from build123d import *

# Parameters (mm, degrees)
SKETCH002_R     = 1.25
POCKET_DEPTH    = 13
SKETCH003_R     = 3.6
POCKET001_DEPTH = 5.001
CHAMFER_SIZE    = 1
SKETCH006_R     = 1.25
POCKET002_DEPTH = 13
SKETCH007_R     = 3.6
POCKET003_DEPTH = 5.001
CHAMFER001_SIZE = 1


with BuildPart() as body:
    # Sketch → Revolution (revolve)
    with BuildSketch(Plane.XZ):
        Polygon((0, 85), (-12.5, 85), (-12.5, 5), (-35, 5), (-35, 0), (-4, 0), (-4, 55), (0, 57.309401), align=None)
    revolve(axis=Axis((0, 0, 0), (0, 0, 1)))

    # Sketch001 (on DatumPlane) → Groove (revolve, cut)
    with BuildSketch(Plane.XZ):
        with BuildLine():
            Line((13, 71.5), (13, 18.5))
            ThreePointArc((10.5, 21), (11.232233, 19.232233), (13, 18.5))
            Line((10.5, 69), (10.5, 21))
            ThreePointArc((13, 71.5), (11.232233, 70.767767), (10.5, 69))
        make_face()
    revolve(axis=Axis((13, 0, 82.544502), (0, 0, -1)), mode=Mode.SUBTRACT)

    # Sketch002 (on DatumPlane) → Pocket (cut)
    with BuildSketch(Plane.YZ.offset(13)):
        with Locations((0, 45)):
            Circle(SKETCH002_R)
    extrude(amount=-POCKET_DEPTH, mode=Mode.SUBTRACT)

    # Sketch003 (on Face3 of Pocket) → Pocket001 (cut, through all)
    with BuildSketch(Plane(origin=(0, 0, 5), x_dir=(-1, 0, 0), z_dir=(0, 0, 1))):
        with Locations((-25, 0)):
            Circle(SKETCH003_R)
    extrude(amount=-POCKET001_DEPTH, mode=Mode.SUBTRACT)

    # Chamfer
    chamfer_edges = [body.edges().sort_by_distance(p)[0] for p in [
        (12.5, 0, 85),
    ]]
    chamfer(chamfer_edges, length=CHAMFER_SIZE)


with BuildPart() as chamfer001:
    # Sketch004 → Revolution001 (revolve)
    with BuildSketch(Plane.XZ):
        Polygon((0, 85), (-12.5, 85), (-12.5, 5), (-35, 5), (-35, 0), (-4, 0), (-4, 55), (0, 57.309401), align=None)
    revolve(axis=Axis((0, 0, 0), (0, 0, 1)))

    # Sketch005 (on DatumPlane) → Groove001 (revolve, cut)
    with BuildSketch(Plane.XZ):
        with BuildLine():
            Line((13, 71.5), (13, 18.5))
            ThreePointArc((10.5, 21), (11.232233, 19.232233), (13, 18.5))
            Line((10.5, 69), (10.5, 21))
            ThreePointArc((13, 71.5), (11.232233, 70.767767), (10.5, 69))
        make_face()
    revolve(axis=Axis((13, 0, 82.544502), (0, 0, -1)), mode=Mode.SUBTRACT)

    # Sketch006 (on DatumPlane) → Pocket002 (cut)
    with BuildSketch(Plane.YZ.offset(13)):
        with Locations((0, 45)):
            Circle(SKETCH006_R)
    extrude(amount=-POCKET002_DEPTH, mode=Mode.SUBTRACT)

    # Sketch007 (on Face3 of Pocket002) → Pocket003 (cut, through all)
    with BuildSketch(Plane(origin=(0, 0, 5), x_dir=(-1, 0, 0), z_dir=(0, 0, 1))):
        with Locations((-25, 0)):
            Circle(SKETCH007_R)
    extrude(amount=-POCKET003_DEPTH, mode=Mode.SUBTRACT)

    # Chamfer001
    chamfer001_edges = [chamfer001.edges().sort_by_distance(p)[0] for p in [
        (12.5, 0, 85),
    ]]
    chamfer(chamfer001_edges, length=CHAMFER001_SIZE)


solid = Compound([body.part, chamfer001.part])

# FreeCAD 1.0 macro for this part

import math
import FreeCAD as App
import Part
import Sketcher
from FreeCAD import Vector
Q = App.Units.Quantity


def edges_at(feature, points):
    """Names of the edges that pass closest to the given points."""
    edges = feature.Shape.Edges
    near = lambda p: min(range(len(edges)), key=lambda i: edges[i].distToShape(Part.Vertex(*p))[0])
    return sorted({f"Edge{near(p) + 1}" for p in points})


def add_polygon(sketch, points):
    """Adds a closed chain of lines whose ends are joined by coincident constraints."""
    first, n = sketch.GeometryCount, len(points)
    for a, b in zip(points, points[1:] + points[:1]):
        sketch.addGeometry(Part.LineSegment(App.Vector(*a, 0), App.Vector(*b, 0)), False)
    for i in range(n):
        sketch.addConstraint(Sketcher.Constraint("Coincident", first + i, 2, first + (i + 1) % n, 1))

doc = App.newDocument("Part")
body = doc.addObject("PartDesign::Body", "Body")

sketch1 = body.newObject("Sketcher::SketchObject", "Sketch")
sketch1.AttachmentSupport = (doc.getObject("XZ_Plane"), [""])
sketch1.MapMode = "FlatFace"
add_polygon(sketch1, [(0, 85), (-12.5, 85), (-12.5, 5), (-35, 5), (-35, 0), (-4, 0), (-4, 55), (0, 57.3)])
sketch1.addConstraint([
    Sketcher.Constraint("Horizontal", 0),
    Sketcher.Constraint("Vertical", 1),
    Sketcher.Constraint("Horizontal", 2),
    Sketcher.Constraint("Vertical", 3),
    Sketcher.Constraint("Horizontal", 4),
    Sketcher.Constraint("Vertical", 5),
    Sketcher.Constraint("Vertical", 7),
    Sketcher.Constraint("PointOnObject", 3, 2, -1),
    Sketcher.Constraint("PointOnObject", 6, 2, -2),
    Sketcher.Constraint("DistanceX", 4, 1, 4, 2, 31.0),
    Sketcher.Constraint("DistanceY", 1, 2, 1, 1, 80.0),
    Sketcher.Constraint("DistanceY", 3, 2, 3, 1, 5.0),
    Sketcher.Constraint("DistanceY", 5, 1, 5, 2, 55.0),
    Sketcher.Constraint("Angle", 6, Q("29.999999 deg")),
    Sketcher.Constraint("DistanceX", 0, 2, 0, 1, 12.5),
    Sketcher.Constraint("DistanceX", 2, 2, 2, 1, 22.5),
])
revolution = body.newObject("PartDesign::Revolution", "Revolution")
revolution.Profile = sketch1
revolution.ReferenceAxis = (sketch1, ["V_Axis"])
revolution.Angle = 360

sketch2 = body.newObject("Sketcher::SketchObject", "Sketch001")
sketch2.AttachmentSupport = (doc.getObject("XZ_Plane"), [""])
sketch2.MapMode = "FlatFace"
sketch2.addGeometry([
    Part.LineSegment(Vector(13, 18.5, 0), Vector(13, 71.5, 0)),
    Part.ArcOfCircle(Part.Circle(Vector(13, 69, 0), Vector(0, 0, 1), 2.5), math.radians(90), math.radians(180)),
    Part.LineSegment(Vector(10.5, 69, 0), Vector(10.5, 21, 0)),
    Part.ArcOfCircle(Part.Circle(Vector(13, 21, 0), Vector(0, 0, 1), 2.5), math.radians(180), math.radians(270)),
], False)
sketch2.addGeometry(Part.LineSegment(Vector(13, 71.5, 0), Vector(13, 18.5, 0)), True)
sketch2.addConstraint([
    Sketcher.Constraint("Coincident", 0, 2, 1, 1),
    Sketcher.Constraint("Tangent", 1, 2, 2, 1),
    Sketcher.Constraint("Tangent", 2, 2, 3, 1),
    Sketcher.Constraint("Coincident", 3, 2, 0, 1),
    Sketcher.Constraint("Vertical", 0),
    Sketcher.Constraint("Vertical", 2),
    Sketcher.Constraint("Vertical", 4),
    Sketcher.Constraint("Coincident", 4, 1, 0, 2),
    Sketcher.Constraint("Equal", 1, 3),
    Sketcher.Constraint("Vertical", 3, 3, 0, 2),
    Sketcher.Constraint("Equal", 0, 4),
    Sketcher.Constraint("Radius", 1, 2.5),
    Sketcher.Constraint("DistanceY", 0, 1, 0, 2, 53.0),
    Sketcher.Constraint("DistanceX", -1, 1, 1, 3, 13.0),
    Sketcher.Constraint("DistanceY", -1, 1, 1, 3, 69.0),
])
groove = body.newObject("PartDesign::Groove", "Groove")
groove.Profile = sketch2
groove.ReferenceAxis = (sketch2, ["Axis0"])
groove.Angle = 360

sketch3 = body.newObject("Sketcher::SketchObject", "Sketch002")
sketch3.AttachmentSupport = (doc.getObject("YZ_Plane"), [""])
sketch3.MapMode = "FlatFace"
sketch3.AttachmentOffset = App.Placement(Vector(0, 0, 13), App.Rotation())
sketch3.addGeometry(Part.Circle(Vector(0, 45, 0), Vector(0, 0, 1), 1.2), False)
sketch3.addConstraint([
    Sketcher.Constraint("PointOnObject", 0, 3, -2),
    Sketcher.Constraint("Diameter", 0, 2.5),
    Sketcher.Constraint("DistanceY", -1, 1, 0, 3, 45.0),
])
pocket1 = body.newObject("PartDesign::Pocket", "Pocket")
pocket1.Profile = sketch3
pocket1.Length = 13

sketch4 = body.newObject("Sketcher::SketchObject", "Sketch003")
sketch4.AttachmentSupport = (doc.getObject("XY_Plane"), [""])
sketch4.MapMode = "FlatFace"
sketch4.AttachmentOffset = App.Placement(Vector(0, 0, 5), App.Rotation())
sketch4.addGeometry(Part.Circle(Vector(25, 0, 0), Vector(0, 0, 1), 3.6), False)
sketch4.addConstraint([
    Sketcher.Constraint("PointOnObject", 0, 3, -1),
    Sketcher.Constraint("Diameter", 0, 7.2),
    Sketcher.Constraint("DistanceX", -1, 1, 0, 3, 25.0),
])
pocket2 = body.newObject("PartDesign::Pocket", "Pocket001")
pocket2.Profile = sketch4
pocket2.Type = "ThroughAll"
doc.recompute()

chamfer = body.newObject("PartDesign::Chamfer", "Chamfer")
chamfer.Base = (pocket2, edges_at(pocket2, [(12.5, 0, 85)]))
chamfer.Size = 1
body2 = doc.addObject("PartDesign::Body", "Body001")

sketch5 = body2.newObject("Sketcher::SketchObject", "Sketch004")
sketch5.AttachmentSupport = (doc.getObject("XZ_Plane001"), [""])
sketch5.MapMode = "FlatFace"
add_polygon(sketch5, [(0, 85), (-12.5, 85), (-12.5, 5), (-35, 5), (-35, 0), (-4, 0), (-4, 55), (0, 57.3)])
sketch5.addConstraint([
    Sketcher.Constraint("Horizontal", 0),
    Sketcher.Constraint("Vertical", 1),
    Sketcher.Constraint("Horizontal", 2),
    Sketcher.Constraint("Vertical", 3),
    Sketcher.Constraint("Horizontal", 4),
    Sketcher.Constraint("Vertical", 5),
    Sketcher.Constraint("Vertical", 7),
    Sketcher.Constraint("PointOnObject", 3, 2, -1),
    Sketcher.Constraint("PointOnObject", 6, 2, -2),
    Sketcher.Constraint("DistanceX", 4, 1, 4, 2, 31.0),
    Sketcher.Constraint("DistanceY", 1, 2, 1, 1, 80.0),
    Sketcher.Constraint("DistanceY", 3, 2, 3, 1, 5.0),
    Sketcher.Constraint("DistanceY", 5, 1, 5, 2, 55.0),
    Sketcher.Constraint("Angle", 6, Q("29.999999 deg")),
    Sketcher.Constraint("DistanceX", 0, 2, 0, 1, 12.5),
    Sketcher.Constraint("DistanceX", 2, 2, 2, 1, 22.5),
])
revolution2 = body2.newObject("PartDesign::Revolution", "Revolution001")
revolution2.Profile = sketch5
revolution2.ReferenceAxis = (sketch5, ["V_Axis"])
revolution2.Angle = 360

sketch6 = body2.newObject("Sketcher::SketchObject", "Sketch005")
sketch6.AttachmentSupport = (doc.getObject("XZ_Plane001"), [""])
sketch6.MapMode = "FlatFace"
sketch6.addGeometry([
    Part.LineSegment(Vector(13, 18.5, 0), Vector(13, 71.5, 0)),
    Part.ArcOfCircle(Part.Circle(Vector(13, 69, 0), Vector(0, 0, 1), 2.5), math.radians(90), math.radians(180)),
    Part.LineSegment(Vector(10.5, 69, 0), Vector(10.5, 21, 0)),
    Part.ArcOfCircle(Part.Circle(Vector(13, 21, 0), Vector(0, 0, 1), 2.5), math.radians(180), math.radians(270)),
], False)
sketch6.addGeometry(Part.LineSegment(Vector(13, 71.5, 0), Vector(13, 18.5, 0)), True)
sketch6.addConstraint([
    Sketcher.Constraint("Coincident", 0, 2, 1, 1),
    Sketcher.Constraint("Tangent", 1, 2, 2, 1),
    Sketcher.Constraint("Tangent", 2, 2, 3, 1),
    Sketcher.Constraint("Coincident", 3, 2, 0, 1),
    Sketcher.Constraint("Vertical", 0),
    Sketcher.Constraint("Vertical", 2),
    Sketcher.Constraint("Vertical", 4),
    Sketcher.Constraint("Coincident", 4, 1, 0, 2),
    Sketcher.Constraint("Equal", 1, 3),
    Sketcher.Constraint("Vertical", 3, 3, 0, 2),
    Sketcher.Constraint("Equal", 0, 4),
    Sketcher.Constraint("Radius", 1, 2.5),
    Sketcher.Constraint("DistanceY", 0, 1, 0, 2, 53.0),
    Sketcher.Constraint("DistanceX", -1, 1, 1, 3, 13.0),
    Sketcher.Constraint("DistanceY", -1, 1, 1, 3, 69.0),
])
groove2 = body2.newObject("PartDesign::Groove", "Groove001")
groove2.Profile = sketch6
groove2.ReferenceAxis = (sketch6, ["Axis0"])
groove2.Angle = 360

sketch7 = body2.newObject("Sketcher::SketchObject", "Sketch006")
sketch7.AttachmentSupport = (doc.getObject("YZ_Plane001"), [""])
sketch7.MapMode = "FlatFace"
sketch7.AttachmentOffset = App.Placement(Vector(0, 0, 13), App.Rotation())
sketch7.addGeometry(Part.Circle(Vector(0, 45, 0), Vector(0, 0, 1), 1.2), False)
sketch7.addConstraint([
    Sketcher.Constraint("PointOnObject", 0, 3, -2),
    Sketcher.Constraint("Diameter", 0, 2.5),
    Sketcher.Constraint("DistanceY", -1, 1, 0, 3, 45.0),
])
pocket3 = body2.newObject("PartDesign::Pocket", "Pocket002")
pocket3.Profile = sketch7
pocket3.Length = 13

sketch8 = body2.newObject("Sketcher::SketchObject", "Sketch007")
sketch8.AttachmentSupport = (doc.getObject("XY_Plane001"), [""])
sketch8.MapMode = "FlatFace"
sketch8.AttachmentOffset = App.Placement(Vector(0, 0, 5), App.Rotation())
sketch8.addGeometry(Part.Circle(Vector(25, 0, 0), Vector(0, 0, 1), 3.6), False)
sketch8.addConstraint([
    Sketcher.Constraint("PointOnObject", 0, 3, -1),
    Sketcher.Constraint("Diameter", 0, 7.2),
    Sketcher.Constraint("DistanceX", -1, 1, 0, 3, 25.0),
])
pocket4 = body2.newObject("PartDesign::Pocket", "Pocket003")
pocket4.Profile = sketch8
pocket4.Type = "ThroughAll"
doc.recompute()

chamfer2 = body2.newObject("PartDesign::Chamfer", "Chamfer001")
chamfer2.Base = (pocket4, edges_at(pocket4, [(12.5, 0, 85)]))
chamfer2.Size = 1

doc.recompute()
